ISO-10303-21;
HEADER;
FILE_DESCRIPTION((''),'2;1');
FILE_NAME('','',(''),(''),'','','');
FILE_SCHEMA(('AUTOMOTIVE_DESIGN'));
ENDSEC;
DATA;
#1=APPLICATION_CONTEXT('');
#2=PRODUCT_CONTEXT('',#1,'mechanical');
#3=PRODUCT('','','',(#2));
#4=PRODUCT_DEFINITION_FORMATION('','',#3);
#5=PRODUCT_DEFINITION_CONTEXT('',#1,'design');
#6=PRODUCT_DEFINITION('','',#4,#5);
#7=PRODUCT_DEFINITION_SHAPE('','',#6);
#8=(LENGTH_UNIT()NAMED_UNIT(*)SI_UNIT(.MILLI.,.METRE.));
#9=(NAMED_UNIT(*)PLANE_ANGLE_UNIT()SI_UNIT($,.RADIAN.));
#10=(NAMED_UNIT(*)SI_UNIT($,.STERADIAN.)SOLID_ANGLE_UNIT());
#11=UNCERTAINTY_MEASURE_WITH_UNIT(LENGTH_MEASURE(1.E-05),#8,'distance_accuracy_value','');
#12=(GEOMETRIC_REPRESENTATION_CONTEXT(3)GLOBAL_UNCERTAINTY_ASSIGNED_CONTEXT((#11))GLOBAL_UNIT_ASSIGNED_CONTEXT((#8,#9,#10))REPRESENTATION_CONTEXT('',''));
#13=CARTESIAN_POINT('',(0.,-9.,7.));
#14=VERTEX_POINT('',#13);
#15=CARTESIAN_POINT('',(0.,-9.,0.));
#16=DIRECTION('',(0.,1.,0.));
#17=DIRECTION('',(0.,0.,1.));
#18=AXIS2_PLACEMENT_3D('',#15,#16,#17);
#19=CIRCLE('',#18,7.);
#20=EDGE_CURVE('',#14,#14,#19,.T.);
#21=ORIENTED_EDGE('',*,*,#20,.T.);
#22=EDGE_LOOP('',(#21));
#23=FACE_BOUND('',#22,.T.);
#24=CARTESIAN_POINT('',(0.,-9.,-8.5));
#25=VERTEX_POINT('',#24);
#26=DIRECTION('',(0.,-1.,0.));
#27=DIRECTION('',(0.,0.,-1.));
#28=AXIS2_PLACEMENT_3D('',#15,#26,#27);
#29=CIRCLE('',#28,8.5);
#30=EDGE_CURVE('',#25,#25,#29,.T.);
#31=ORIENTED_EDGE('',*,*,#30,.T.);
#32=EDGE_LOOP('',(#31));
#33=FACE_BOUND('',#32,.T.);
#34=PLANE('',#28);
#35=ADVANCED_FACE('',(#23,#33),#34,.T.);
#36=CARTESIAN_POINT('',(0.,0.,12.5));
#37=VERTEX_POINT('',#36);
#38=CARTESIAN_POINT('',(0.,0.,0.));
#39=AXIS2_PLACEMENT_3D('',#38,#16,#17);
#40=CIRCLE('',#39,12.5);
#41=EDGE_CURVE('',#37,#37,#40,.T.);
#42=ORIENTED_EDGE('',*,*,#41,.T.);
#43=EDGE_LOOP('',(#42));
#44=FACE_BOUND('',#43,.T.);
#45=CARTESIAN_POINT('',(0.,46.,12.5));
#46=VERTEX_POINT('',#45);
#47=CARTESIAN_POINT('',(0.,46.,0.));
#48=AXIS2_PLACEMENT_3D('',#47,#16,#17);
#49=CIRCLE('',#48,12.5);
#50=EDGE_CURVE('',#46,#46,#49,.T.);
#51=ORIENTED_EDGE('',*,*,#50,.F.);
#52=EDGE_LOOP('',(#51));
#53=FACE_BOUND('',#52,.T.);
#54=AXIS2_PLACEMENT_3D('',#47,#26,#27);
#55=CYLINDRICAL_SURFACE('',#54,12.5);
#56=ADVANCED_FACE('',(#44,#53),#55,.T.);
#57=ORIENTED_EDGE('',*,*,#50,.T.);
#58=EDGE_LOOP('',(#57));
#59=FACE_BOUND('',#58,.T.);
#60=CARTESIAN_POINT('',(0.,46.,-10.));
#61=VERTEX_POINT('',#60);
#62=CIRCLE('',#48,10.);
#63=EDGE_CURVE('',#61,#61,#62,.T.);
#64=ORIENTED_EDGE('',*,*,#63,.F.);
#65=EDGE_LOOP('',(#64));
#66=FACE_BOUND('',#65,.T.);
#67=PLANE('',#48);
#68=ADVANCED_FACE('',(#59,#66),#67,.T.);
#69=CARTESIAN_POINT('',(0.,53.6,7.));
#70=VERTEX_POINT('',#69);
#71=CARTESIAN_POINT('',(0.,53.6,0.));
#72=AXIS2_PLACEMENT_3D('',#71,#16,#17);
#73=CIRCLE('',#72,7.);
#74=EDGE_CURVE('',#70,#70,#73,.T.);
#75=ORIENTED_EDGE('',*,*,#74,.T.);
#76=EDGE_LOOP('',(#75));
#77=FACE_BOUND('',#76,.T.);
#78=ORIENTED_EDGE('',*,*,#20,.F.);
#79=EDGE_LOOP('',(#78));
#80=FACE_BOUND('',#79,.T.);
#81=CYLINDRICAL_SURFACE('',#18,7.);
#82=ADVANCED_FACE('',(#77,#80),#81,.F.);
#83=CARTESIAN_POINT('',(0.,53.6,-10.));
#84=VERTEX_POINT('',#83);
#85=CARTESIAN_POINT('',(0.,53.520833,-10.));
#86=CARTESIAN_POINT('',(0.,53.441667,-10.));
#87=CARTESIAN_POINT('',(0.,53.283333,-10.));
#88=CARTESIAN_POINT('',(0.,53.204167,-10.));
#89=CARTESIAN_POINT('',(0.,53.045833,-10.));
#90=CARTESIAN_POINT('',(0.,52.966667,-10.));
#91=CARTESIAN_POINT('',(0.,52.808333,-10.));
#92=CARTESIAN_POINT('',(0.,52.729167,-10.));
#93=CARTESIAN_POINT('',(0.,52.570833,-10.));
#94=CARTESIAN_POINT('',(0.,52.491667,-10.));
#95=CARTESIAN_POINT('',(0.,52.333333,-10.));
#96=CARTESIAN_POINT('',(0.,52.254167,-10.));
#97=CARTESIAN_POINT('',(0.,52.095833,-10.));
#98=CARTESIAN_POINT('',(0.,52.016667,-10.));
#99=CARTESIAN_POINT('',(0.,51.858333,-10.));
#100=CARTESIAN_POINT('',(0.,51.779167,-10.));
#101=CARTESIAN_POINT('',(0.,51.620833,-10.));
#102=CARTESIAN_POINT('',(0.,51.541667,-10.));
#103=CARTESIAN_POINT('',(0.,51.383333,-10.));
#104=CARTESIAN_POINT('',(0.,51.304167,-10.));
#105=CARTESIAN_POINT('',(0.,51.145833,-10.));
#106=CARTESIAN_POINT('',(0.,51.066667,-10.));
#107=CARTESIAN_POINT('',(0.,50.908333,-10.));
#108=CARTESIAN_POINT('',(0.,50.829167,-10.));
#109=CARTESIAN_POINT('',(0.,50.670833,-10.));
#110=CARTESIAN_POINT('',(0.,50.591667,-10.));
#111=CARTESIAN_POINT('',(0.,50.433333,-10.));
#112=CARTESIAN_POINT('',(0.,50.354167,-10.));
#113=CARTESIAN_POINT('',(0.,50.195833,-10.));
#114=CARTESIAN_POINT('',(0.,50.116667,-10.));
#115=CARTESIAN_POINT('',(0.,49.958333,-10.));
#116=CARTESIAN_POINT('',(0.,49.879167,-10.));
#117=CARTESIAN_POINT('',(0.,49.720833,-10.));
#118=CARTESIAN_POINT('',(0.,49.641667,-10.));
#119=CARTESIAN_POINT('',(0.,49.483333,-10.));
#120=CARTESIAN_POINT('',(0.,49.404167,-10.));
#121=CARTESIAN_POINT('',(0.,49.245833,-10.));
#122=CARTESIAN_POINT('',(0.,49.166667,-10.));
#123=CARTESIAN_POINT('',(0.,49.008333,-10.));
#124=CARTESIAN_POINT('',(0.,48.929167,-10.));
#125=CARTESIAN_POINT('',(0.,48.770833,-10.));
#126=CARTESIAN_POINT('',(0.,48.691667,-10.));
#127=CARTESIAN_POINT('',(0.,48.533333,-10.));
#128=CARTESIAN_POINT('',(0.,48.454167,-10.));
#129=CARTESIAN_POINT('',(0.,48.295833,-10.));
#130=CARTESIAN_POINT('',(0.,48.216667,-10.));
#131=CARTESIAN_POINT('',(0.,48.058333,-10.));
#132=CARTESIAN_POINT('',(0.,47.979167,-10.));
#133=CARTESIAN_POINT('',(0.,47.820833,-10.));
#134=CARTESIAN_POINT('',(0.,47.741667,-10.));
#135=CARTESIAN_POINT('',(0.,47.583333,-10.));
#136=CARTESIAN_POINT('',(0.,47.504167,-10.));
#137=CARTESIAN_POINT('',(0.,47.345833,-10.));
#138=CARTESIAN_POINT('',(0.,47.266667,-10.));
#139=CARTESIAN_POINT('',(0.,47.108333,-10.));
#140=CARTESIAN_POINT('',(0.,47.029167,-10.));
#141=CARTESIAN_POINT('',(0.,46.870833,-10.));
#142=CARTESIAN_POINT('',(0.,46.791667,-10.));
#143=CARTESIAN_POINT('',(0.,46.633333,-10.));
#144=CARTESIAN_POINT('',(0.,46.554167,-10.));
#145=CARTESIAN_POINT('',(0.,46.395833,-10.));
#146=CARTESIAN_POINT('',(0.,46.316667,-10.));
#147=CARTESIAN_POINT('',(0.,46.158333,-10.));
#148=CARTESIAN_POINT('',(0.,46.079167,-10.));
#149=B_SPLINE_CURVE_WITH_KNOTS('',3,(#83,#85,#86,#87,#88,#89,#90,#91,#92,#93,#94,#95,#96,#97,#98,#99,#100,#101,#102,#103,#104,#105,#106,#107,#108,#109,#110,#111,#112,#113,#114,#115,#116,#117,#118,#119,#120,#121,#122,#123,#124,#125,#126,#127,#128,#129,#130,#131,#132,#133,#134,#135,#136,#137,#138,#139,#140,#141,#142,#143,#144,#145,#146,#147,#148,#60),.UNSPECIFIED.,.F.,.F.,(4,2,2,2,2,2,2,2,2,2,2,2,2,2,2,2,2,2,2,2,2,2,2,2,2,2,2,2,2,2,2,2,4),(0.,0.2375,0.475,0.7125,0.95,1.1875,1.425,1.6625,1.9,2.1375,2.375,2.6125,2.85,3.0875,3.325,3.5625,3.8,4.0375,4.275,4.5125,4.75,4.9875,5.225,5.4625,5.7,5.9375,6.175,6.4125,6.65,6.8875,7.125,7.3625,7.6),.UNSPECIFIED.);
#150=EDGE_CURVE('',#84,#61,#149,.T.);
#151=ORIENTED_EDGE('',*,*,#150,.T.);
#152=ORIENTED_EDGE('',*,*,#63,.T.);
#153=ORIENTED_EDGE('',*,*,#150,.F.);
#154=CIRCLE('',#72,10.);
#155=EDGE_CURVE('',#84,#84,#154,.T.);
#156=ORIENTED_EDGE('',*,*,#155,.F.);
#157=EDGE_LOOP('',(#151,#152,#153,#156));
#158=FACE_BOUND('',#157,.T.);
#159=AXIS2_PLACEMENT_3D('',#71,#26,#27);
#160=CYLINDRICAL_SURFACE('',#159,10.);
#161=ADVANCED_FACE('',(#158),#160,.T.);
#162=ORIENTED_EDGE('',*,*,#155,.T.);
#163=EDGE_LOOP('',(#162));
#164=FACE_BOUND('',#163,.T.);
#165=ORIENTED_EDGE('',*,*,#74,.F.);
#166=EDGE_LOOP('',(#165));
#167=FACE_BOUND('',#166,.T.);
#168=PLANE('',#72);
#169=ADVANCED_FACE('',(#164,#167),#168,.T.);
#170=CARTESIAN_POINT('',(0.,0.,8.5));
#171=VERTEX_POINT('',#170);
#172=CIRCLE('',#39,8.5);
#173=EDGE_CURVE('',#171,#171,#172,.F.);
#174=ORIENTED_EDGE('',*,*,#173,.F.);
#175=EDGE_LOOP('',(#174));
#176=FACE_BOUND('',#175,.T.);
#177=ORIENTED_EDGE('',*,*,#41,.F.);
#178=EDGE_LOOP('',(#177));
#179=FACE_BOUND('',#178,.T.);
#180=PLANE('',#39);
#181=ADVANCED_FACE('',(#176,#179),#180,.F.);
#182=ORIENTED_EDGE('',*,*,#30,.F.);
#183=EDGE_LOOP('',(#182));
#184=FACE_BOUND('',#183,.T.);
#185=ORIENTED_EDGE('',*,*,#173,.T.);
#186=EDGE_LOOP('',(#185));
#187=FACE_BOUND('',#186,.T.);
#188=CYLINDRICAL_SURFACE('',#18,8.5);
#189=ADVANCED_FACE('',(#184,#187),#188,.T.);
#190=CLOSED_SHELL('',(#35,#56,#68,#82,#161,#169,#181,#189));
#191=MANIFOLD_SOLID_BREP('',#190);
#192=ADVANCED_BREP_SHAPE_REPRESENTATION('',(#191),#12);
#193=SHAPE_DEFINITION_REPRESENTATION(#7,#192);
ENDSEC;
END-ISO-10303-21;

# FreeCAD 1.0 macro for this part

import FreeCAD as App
import Part
import Sketcher

V = App.Vector

doc = App.newDocument("Part")
body = doc.addObject("PartDesign::Body", "Body")

# Sketch on XZ plane
sketch1 = body.newObject("Sketcher::SketchObject", "Sketch")
sketch1.AttachmentSupport = (doc.getObject("XZ_Plane"), [""])
sketch1.MapMode = "FlatFace"
sketch1.addGeometry(Part.Circle(V(0, 0, 0), V(0, 0, 1), 12), False)
sketch1.addConstraint([
    Sketcher.Constraint("Coincident", 0, 3, -1, 1),
    Sketcher.Constraint("Diameter", 0, 25.0),
])
pad1 = body.newObject("PartDesign::Pad", "Pad")
pad1.Profile = sketch1
pad1.Length = 46
pad1.Reversed = True

# Sketch on XZ plane
sketch2 = body.newObject("Sketcher::SketchObject", "Sketch001")
sketch2.AttachmentSupport = (doc.getObject("XZ_Plane"), [""])
sketch2.MapMode = "FlatFace"
sketch2.addGeometry(Part.Circle(V(0, 0, 0), V(0, 0, 1), 8), False)
sketch2.addConstraint([
    Sketcher.Constraint("Coincident", 0, 3, -1, 1),
    Sketcher.Constraint("Diameter", 0, 16.75),
])
pad2 = body.newObject("PartDesign::Pad", "Pad001")
pad2.Profile = sketch2
pad2.Length = 4

# Sketch on XZ plane
sketch3 = body.newObject("Sketcher::SketchObject", "Sketch002")
sketch3.AttachmentSupport = (doc.getObject("XZ_Plane"), [""])
sketch3.MapMode = "FlatFace"
sketch3.AttachmentOffset = App.Placement(V(0, 0, -46), App.Rotation())
sketch3.addGeometry(Part.Circle(V(0, 0, 0), V(0, 0, 1), 10), False)
sketch3.addConstraint([
    Sketcher.Constraint("Coincident", 0, 3, -1, 1),
    Sketcher.Constraint("Diameter", 0, 20.0),
])
pad3 = body.newObject("PartDesign::Pad", "Pad002")
pad3.Profile = sketch3
pad3.Length = 7.6
pad3.Reversed = True

# Sketch on XZ plane
sketch4 = body.newObject("Sketcher::SketchObject", "Sketch003")
sketch4.AttachmentSupport = (doc.getObject("XZ_Plane"), [""])
sketch4.MapMode = "FlatFace"
sketch4.addGeometry(Part.Circle(V(0, 0, 0), V(0, 0, 1), 8), False)
sketch4.addConstraint([
    Sketcher.Constraint("Coincident", 0, 3, -1, 1),
    Sketcher.Constraint("Diameter", 0, 17.0),
])
pad4 = body.newObject("PartDesign::Pad", "Pad003")
pad4.Profile = sketch4
pad4.Length = 9

# Sketch on XZ plane
sketch5 = body.newObject("Sketcher::SketchObject", "Sketch004")
sketch5.AttachmentSupport = (doc.getObject("XZ_Plane"), [""])
sketch5.MapMode = "FlatFace"
sketch5.AttachmentOffset = App.Placement(V(0, 0, -53.6), App.Rotation())
sketch5.addGeometry(Part.Circle(V(0, 0, 0), V(0, 0, 1), 5), False)
sketch5.addConstraint([
    Sketcher.Constraint("Coincident", 0, 3, -1, 1),
    Sketcher.Constraint("Diameter", 0, 10.0),
])
pocket1 = body.newObject("PartDesign::Pocket", "Pocket")
pocket1.Profile = sketch5
pocket1.Type = "ThroughAll"
pocket1.Reversed = True

# Sketch on XZ plane
sketch6 = body.newObject("Sketcher::SketchObject", "Sketch005")
sketch6.AttachmentSupport = (doc.getObject("XZ_Plane"), [""])
sketch6.MapMode = "FlatFace"
sketch6.AttachmentOffset = App.Placement(V(0, 0, -53.6), App.Rotation())
sketch6.addGeometry(Part.Circle(V(0, 0, 0), V(0, 0, 1), 7), False)
sketch6.addConstraint([
    Sketcher.Constraint("Coincident", 0, 3, -1, 1),
    Sketcher.Constraint("Diameter", 0, 14.0),
])
pocket2 = body.newObject("PartDesign::Pocket", "Pocket001")
pocket2.Profile = sketch6
pocket2.Type = "ThroughAll"
pocket2.Reversed = True

doc.recompute()
